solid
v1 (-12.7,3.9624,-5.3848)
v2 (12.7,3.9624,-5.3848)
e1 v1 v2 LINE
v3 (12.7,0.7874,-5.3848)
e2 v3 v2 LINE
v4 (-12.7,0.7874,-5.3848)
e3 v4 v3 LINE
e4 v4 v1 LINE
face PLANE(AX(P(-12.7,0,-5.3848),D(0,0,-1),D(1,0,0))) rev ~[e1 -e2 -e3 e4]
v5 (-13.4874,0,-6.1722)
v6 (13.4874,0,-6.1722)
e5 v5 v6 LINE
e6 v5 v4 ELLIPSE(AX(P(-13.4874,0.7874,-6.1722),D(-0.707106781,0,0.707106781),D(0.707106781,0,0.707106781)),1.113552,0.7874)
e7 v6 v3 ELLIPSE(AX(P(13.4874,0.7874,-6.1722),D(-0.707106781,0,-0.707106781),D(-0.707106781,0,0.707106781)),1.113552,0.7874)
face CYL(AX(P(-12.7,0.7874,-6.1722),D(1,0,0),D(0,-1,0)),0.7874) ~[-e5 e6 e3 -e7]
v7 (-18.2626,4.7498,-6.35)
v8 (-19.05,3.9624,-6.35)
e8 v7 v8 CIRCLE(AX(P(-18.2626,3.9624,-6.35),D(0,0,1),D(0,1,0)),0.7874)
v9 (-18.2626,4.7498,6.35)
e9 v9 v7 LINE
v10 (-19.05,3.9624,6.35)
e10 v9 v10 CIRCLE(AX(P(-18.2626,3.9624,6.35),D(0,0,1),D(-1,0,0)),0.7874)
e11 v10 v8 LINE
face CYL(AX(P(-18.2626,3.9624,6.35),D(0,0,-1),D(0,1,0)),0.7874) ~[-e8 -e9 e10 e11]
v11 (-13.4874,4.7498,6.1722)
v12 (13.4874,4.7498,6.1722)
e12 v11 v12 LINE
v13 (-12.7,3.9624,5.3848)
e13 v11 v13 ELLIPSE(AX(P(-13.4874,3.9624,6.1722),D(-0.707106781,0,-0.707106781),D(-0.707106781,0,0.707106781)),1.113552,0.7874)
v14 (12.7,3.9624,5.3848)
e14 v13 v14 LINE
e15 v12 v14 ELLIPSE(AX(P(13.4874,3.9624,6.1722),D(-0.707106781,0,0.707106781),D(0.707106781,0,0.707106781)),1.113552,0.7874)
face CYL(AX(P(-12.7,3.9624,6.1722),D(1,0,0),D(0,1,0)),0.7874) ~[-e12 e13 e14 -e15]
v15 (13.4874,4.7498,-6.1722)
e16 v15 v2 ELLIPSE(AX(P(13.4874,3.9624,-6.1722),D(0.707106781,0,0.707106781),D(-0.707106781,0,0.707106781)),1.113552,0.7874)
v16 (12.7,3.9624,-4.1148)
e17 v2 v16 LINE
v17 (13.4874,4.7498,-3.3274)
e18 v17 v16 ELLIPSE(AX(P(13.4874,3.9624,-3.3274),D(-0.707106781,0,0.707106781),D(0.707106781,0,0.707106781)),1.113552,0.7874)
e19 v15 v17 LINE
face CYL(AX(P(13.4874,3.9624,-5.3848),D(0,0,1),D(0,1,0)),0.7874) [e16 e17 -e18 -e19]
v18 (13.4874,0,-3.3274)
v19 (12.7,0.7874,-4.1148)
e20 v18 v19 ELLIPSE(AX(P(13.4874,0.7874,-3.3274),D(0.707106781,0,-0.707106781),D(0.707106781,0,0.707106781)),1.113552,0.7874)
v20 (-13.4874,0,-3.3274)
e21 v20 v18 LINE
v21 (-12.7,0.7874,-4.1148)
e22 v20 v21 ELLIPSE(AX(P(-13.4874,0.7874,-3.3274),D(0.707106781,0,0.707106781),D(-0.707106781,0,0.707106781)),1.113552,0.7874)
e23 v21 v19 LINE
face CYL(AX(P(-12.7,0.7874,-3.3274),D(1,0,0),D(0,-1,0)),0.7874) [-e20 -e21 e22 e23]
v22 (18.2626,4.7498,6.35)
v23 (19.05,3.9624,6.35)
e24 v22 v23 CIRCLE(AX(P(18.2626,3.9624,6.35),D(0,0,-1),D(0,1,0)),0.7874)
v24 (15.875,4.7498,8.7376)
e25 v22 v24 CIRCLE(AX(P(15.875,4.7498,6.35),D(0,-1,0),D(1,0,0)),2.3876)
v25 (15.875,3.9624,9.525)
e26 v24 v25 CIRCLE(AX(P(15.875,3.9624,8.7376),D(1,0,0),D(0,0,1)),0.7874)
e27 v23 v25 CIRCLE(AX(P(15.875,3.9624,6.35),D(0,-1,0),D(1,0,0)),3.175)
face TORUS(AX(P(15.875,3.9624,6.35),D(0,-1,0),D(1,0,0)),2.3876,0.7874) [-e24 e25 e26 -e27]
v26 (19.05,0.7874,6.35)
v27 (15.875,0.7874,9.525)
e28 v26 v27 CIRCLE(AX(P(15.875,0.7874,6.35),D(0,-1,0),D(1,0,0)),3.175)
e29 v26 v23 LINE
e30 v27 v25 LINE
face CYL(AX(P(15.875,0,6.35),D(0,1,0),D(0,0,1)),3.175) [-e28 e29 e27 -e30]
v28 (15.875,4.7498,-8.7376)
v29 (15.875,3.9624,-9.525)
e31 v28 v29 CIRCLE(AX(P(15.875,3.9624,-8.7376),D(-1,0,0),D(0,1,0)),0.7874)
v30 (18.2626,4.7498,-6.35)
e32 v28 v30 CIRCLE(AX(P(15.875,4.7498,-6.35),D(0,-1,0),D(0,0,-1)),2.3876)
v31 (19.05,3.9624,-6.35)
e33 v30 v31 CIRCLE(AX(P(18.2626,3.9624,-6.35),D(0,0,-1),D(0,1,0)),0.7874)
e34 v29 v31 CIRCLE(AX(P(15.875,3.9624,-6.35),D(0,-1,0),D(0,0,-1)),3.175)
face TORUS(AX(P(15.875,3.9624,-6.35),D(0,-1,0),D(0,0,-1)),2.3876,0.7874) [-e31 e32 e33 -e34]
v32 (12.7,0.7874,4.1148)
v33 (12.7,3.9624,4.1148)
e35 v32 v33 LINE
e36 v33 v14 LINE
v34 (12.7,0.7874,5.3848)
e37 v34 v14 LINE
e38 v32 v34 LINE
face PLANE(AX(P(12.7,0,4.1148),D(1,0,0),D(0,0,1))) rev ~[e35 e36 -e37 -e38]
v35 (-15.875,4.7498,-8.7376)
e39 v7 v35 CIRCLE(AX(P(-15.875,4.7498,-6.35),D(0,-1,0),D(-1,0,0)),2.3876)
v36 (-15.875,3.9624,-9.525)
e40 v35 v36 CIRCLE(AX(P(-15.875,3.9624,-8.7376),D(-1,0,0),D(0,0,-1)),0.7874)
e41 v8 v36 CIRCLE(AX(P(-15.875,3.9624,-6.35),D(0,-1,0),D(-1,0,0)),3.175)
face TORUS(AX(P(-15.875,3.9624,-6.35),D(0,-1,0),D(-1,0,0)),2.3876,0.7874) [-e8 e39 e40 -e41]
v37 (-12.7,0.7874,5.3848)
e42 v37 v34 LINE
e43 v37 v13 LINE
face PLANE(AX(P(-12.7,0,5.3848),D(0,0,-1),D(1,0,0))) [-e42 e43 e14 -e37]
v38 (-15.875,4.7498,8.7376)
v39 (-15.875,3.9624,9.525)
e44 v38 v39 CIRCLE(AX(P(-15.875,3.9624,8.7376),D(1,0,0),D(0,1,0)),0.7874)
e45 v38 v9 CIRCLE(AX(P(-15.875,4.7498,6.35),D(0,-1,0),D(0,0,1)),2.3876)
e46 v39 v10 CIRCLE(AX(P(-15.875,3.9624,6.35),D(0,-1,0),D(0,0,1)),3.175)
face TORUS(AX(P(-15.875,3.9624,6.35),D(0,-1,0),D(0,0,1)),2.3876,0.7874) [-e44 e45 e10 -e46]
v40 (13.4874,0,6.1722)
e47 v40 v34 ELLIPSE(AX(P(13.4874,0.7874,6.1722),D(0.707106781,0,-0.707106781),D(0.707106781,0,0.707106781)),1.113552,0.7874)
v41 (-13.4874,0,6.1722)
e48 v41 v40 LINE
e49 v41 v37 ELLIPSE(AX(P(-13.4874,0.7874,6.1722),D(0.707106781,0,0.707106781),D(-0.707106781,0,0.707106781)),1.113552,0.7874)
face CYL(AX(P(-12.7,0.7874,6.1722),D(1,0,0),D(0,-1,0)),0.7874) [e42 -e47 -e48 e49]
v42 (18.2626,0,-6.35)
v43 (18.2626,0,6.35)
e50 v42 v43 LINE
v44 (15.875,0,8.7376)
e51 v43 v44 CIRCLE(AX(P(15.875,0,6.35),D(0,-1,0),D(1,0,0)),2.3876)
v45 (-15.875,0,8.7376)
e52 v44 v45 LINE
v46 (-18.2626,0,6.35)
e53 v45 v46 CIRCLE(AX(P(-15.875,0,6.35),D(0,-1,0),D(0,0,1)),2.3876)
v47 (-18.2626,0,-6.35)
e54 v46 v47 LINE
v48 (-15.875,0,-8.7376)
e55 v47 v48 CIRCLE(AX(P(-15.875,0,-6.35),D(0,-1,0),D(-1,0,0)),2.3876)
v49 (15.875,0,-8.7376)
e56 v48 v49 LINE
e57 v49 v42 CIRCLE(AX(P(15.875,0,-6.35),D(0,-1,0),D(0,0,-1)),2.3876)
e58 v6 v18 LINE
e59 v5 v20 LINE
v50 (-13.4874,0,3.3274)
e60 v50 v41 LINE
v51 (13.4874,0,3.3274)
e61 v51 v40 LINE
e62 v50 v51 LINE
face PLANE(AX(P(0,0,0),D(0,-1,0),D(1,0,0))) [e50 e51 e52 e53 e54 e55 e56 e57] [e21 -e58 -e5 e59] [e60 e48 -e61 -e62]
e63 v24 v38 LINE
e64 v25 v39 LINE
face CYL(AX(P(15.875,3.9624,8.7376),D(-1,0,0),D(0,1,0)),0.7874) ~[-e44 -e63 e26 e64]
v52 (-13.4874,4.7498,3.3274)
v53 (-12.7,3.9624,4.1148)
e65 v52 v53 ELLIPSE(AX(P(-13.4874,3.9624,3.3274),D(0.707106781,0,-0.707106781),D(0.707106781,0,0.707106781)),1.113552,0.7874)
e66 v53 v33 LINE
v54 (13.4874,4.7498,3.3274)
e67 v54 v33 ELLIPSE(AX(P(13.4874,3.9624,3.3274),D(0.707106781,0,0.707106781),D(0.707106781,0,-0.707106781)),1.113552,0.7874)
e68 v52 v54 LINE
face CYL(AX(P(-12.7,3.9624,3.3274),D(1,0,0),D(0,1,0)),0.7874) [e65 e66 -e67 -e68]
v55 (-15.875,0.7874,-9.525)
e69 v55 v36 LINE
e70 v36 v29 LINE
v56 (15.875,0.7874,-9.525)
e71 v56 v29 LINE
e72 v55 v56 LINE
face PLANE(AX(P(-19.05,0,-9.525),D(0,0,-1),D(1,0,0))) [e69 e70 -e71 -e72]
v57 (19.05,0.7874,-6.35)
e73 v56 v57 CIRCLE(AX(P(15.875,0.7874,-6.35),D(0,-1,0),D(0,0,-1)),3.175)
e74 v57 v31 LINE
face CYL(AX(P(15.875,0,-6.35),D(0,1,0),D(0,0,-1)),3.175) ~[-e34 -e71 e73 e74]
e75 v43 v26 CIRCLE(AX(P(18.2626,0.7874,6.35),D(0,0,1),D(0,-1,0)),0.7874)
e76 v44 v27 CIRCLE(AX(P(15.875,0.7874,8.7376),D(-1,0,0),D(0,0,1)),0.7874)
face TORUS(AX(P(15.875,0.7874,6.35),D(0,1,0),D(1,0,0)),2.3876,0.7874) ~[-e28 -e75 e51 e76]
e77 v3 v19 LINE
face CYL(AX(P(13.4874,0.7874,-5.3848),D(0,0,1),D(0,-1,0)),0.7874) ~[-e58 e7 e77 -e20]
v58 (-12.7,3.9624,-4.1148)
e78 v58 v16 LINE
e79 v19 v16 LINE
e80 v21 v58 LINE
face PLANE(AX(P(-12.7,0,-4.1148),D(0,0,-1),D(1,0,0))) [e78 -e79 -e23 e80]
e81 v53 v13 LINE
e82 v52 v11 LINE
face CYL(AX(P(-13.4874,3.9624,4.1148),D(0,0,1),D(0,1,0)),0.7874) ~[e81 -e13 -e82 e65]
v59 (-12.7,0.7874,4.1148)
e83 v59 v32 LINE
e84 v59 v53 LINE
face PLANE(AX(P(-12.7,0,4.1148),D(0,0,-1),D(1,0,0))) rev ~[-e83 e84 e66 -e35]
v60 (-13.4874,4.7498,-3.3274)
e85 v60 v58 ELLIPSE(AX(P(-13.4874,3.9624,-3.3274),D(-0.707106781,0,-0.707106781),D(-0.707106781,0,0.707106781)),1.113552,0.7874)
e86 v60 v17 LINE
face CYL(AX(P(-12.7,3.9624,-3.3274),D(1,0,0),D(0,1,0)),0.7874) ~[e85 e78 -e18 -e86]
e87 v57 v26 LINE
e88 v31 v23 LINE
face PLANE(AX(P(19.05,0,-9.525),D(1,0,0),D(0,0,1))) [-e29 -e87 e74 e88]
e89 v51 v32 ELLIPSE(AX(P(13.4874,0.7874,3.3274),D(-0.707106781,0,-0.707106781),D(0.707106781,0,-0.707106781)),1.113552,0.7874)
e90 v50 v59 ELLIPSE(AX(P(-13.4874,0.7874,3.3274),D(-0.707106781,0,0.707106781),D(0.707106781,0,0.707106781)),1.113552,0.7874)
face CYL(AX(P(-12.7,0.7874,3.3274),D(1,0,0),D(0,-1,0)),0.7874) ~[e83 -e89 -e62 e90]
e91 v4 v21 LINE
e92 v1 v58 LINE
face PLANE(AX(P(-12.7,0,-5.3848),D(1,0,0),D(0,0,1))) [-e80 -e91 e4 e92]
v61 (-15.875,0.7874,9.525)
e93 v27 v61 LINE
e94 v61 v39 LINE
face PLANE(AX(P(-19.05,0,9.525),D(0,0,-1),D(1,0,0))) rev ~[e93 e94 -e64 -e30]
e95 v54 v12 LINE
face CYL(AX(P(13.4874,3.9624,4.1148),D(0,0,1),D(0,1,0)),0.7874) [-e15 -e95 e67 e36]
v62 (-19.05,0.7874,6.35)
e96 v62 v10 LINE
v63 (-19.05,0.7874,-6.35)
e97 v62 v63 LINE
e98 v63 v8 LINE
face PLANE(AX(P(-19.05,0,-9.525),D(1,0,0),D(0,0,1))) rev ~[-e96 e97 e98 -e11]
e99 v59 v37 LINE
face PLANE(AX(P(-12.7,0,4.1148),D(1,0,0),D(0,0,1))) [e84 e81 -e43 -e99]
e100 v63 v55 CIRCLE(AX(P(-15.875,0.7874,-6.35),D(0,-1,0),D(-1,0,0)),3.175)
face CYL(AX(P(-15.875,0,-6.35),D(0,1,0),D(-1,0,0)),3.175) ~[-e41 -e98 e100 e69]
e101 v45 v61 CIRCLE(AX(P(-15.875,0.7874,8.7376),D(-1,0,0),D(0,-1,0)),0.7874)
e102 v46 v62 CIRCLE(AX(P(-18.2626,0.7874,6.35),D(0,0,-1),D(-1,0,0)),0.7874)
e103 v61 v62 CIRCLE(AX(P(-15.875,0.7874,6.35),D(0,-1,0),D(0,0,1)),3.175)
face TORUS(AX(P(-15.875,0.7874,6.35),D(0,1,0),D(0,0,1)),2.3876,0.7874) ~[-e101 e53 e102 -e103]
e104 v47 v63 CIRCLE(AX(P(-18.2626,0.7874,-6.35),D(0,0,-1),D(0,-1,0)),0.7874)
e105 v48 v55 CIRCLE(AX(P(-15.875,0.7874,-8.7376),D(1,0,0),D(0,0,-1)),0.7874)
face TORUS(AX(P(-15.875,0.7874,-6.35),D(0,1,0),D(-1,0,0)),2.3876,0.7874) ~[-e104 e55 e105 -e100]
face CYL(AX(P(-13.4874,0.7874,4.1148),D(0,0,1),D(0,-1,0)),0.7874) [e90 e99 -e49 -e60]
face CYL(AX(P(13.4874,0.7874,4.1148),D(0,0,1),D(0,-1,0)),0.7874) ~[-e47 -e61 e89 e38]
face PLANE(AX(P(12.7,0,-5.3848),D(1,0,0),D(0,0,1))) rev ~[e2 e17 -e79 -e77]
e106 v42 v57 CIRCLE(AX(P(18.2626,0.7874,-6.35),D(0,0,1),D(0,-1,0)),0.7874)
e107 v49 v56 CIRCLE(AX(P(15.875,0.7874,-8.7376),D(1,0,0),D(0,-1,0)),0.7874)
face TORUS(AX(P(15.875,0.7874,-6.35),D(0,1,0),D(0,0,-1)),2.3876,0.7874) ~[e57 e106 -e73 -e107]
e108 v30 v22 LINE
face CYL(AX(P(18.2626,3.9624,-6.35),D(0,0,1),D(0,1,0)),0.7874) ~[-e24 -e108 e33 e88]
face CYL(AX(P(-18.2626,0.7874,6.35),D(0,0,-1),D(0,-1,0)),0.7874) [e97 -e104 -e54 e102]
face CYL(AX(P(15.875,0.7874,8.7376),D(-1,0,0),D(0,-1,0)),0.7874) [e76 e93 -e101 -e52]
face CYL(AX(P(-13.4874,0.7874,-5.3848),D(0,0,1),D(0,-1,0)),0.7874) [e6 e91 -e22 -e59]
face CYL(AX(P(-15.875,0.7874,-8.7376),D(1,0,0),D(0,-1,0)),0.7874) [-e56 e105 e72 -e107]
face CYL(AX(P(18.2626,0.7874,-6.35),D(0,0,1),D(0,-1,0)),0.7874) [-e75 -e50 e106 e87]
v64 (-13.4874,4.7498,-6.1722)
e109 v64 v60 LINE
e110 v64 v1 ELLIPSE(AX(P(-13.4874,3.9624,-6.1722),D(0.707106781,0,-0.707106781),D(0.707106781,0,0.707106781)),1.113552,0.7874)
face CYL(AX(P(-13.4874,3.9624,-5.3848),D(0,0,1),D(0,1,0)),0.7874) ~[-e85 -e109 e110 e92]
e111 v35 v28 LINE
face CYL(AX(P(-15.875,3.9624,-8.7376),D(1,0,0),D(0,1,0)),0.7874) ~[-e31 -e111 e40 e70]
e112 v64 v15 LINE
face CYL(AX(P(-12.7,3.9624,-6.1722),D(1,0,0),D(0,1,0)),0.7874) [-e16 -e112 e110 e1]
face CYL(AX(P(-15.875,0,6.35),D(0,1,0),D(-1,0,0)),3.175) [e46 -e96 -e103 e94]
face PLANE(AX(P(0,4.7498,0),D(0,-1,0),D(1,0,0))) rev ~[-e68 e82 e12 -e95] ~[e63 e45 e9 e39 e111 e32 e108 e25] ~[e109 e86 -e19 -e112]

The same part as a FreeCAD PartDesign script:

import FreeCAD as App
import Part
import Sketcher
Q = App.Units.Quantity


def edges_at(feature, points):
    """Names of the edges that pass closest to the given points."""
    edges = feature.Shape.Edges
    near = lambda p: min(range(len(edges)), key=lambda i: edges[i].distToShape(Part.Vertex(*p))[0])
    return sorted({f"Edge{near(p) + 1}" for p in points})


def add_polygon(sketch, points):
    """Adds a closed chain of lines whose ends are joined by coincident constraints."""
    first, n = sketch.GeometryCount, len(points)
    for a, b in zip(points, points[1:] + points[:1]):
        sketch.addGeometry(Part.LineSegment(App.Vector(*a, 0), App.Vector(*b, 0)), False)
    for i in range(n):
        sketch.addConstraint(Sketcher.Constraint("Coincident", first + i, 2, first + (i + 1) % n, 1))

doc = App.newDocument("Part")
body = doc.addObject("PartDesign::Body", "Body")

sketch1 = doc.addObject("Sketcher::SketchObject", "Sketch")
body.addObject(sketch1)
sketch1.AttachmentSupport = (doc.XZ_Plane, [""])
sketch1.MapMode = "FlatFace"
add_polygon(sketch1, [(-19.1, 9.5), (-19.1, -9.5), (19.1, -9.5), (19.1, 9.5)])
add_polygon(sketch1, [(12.7, -5.4), (-12.7, -5.4), (-12.7, -4.1), (12.7, -4.1)])
add_polygon(sketch1, [(12.7, 4.1), (-12.7, 4.1), (-12.7, 5.4), (12.7, 5.4)])
sketch1.addConstraint([
    Sketcher.Constraint("Vertical", 0),
    Sketcher.Constraint("Horizontal", 1),
    Sketcher.Constraint("Vertical", 2),
    Sketcher.Constraint("Horizontal", 3),
    Sketcher.Constraint("Horizontal", 4),
    Sketcher.Constraint("Vertical", 5),
    Sketcher.Constraint("Horizontal", 6),
    Sketcher.Constraint("Vertical", 7),
    Sketcher.Constraint("Horizontal", 8),
    Sketcher.Constraint("Vertical", 9),
    Sketcher.Constraint("Horizontal", 10),
    Sketcher.Constraint("Vertical", 11),
    Sketcher.Constraint("Symmetric", 0, 2, 2, 2, -1, 1),
    Sketcher.Constraint("Symmetric", 6, 2, 8, 2, -1, 1),
    Sketcher.Constraint("Symmetric", 4, 2, 10, 2, -1, 1),
    Sketcher.Constraint("Vertical", 5, 2, 8, 2),
    Sketcher.Constraint("DistanceX", 4, 2, 4, 1, Q("1 in")),
    Sketcher.Constraint("DistanceX", 1, 1, 1, 2, Q("1.5 in")),
    Sketcher.Constraint("DistanceY", 0, 2, 0, 1, Q("0.75 in")),
    Sketcher.Constraint("DistanceY", 5, 1, 5, 2, Q("0.05 in")),
    Sketcher.Constraint("DistanceY", 4, 2, -1, 1, Q("0.212 in")),
])
pad1 = doc.addObject("PartDesign::Pad", "Pad")
body.addObject(pad1)
pad1.Profile = sketch1
pad1.Length = Q("0.187 in")
pad1.Reversed = True
doc.recompute()

fillet = doc.addObject("PartDesign::Fillet", "Fillet")
body.addObject(fillet)
fillet.Base = (pad1, edges_at(pad1, [
    (19.05, 2.375, 9.525),
    (19.05, 2.375, -9.525),
    (-19.05, 2.375, 9.525),
    (-19.05, 2.375, -9.525),
]))
fillet.Radius = Q("0.125 in")
doc.recompute()

fillet2 = doc.addObject("PartDesign::Fillet", "Fillet001")
body.addObject(fillet2)
fillet2.Base = (fillet, edges_at(fillet, [
    (19.05, 0, 0),
    (18.12, 0, -8.595),
    (18.12, 0, 8.595),
    (0, 0, -9.525),
    (0, 0, 9.525),
    (-18.12, 0, -8.595),
    (-18.12, 0, 8.595),
    (-19.05, 0, 0),
    (-12.7, 0, -4.75),
    (0, 0, -4.115),
    (12.7, 0, -4.75),
    (0, 0, -5.385),
    (0, 0, 4.115),
    (-12.7, 0, 4.75),
    (0, 0, 5.385),
    (12.7, 0, 4.75),
    (19.05, 4.75, 0),
    (18.12, 4.75, -8.595),
    (18.12, 4.75, 8.595),
    (0, 4.75, -9.525),
    (0, 4.75, 9.525),
    (-18.12, 4.75, -8.595),
    (-18.12, 4.75, 8.595),
    (-19.05, 4.75, 0),
    (-12.7, 4.75, -4.75),
    (0, 4.75, -4.115),
    (12.7, 4.75, -4.75),
    (0, 4.75, -5.385),
    (0, 4.75, 4.115),
    (-12.7, 4.75, 4.75),
    (0, 4.75, 5.385),
    (12.7, 4.75, 4.75),
]))
fillet2.Radius = Q("0.031 in")

doc.recompute()
